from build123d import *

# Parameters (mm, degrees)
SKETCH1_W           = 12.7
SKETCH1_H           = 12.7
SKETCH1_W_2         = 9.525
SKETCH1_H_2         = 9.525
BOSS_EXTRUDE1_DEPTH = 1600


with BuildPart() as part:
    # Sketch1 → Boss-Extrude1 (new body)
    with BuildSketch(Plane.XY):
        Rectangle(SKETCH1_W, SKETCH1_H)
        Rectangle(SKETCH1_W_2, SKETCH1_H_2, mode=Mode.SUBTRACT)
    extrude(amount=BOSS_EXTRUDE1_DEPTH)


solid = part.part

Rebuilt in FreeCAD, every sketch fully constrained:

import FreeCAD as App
import Part
import Sketcher
from FreeCAD import Vector
Q = App.Units.Quantity

doc = App.newDocument("Part")
body = doc.addObject("PartDesign::Body", "Body")

sketch1 = body.newObject("Sketcher::SketchObject", "Sketch")
sketch1.AttachmentSupport = (doc.getObject("XY_Plane"), [""])
sketch1.MapMode = "FlatFace"
sketch1.addGeometry([
    Part.LineSegment(Vector(-6, 6, 0), Vector(-6, -6, 0)),
    Part.LineSegment(Vector(-6, -6, 0), Vector(6, -6, 0)),
    Part.LineSegment(Vector(6, -6, 0), Vector(6, 6, 0)),
    Part.LineSegment(Vector(6, 6, 0), Vector(-6, 6, 0)),
    Part.LineSegment(Vector(5, -5, 0), Vector(-5, -5, 0)),
    Part.LineSegment(Vector(-5, -5, 0), Vector(-5, 5, 0)),
    Part.LineSegment(Vector(-5, 5, 0), Vector(5, 5, 0)),
    Part.LineSegment(Vector(5, 5, 0), Vector(5, -5, 0)),
], False)
sketch1.addConstraint([
    Sketcher.Constraint("Coincident", 0, 2, 1, 1),
    Sketcher.Constraint("Coincident", 1, 2, 2, 1),
    Sketcher.Constraint("Coincident", 2, 2, 3, 1),
    Sketcher.Constraint("Coincident", 3, 2, 0, 1),
    Sketcher.Constraint("Coincident", 4, 2, 5, 1),
    Sketcher.Constraint("Coincident", 5, 2, 6, 1),
    Sketcher.Constraint("Coincident", 6, 2, 7, 1),
    Sketcher.Constraint("Coincident", 7, 2, 4, 1),
    Sketcher.Constraint("Vertical", 0),
    Sketcher.Constraint("Horizontal", 1),
    Sketcher.Constraint("Vertical", 2),
    Sketcher.Constraint("Horizontal", 3),
    Sketcher.Constraint("Horizontal", 4),
    Sketcher.Constraint("Vertical", 5),
    Sketcher.Constraint("Horizontal", 6),
    Sketcher.Constraint("Vertical", 7),
    Sketcher.Constraint("Symmetric", 0, 2, 2, 2, -1, 1),
    Sketcher.Constraint("Symmetric", 4, 2, 6, 2, -1, 1),
    Sketcher.Constraint("Equal", 3, 0),
    Sketcher.Constraint("Equal", 6, 5),
    Sketcher.Constraint("DistanceX", 1, 1, 1, 2, Q("0.5 in")),
    Sketcher.Constraint("DistanceX", 4, 2, 4, 1, Q("0.375 in")),
])
pad1 = body.newObject("PartDesign::Pad", "Pad")
pad1.Profile = sketch1
pad1.Length = 1600

doc.recompute()
